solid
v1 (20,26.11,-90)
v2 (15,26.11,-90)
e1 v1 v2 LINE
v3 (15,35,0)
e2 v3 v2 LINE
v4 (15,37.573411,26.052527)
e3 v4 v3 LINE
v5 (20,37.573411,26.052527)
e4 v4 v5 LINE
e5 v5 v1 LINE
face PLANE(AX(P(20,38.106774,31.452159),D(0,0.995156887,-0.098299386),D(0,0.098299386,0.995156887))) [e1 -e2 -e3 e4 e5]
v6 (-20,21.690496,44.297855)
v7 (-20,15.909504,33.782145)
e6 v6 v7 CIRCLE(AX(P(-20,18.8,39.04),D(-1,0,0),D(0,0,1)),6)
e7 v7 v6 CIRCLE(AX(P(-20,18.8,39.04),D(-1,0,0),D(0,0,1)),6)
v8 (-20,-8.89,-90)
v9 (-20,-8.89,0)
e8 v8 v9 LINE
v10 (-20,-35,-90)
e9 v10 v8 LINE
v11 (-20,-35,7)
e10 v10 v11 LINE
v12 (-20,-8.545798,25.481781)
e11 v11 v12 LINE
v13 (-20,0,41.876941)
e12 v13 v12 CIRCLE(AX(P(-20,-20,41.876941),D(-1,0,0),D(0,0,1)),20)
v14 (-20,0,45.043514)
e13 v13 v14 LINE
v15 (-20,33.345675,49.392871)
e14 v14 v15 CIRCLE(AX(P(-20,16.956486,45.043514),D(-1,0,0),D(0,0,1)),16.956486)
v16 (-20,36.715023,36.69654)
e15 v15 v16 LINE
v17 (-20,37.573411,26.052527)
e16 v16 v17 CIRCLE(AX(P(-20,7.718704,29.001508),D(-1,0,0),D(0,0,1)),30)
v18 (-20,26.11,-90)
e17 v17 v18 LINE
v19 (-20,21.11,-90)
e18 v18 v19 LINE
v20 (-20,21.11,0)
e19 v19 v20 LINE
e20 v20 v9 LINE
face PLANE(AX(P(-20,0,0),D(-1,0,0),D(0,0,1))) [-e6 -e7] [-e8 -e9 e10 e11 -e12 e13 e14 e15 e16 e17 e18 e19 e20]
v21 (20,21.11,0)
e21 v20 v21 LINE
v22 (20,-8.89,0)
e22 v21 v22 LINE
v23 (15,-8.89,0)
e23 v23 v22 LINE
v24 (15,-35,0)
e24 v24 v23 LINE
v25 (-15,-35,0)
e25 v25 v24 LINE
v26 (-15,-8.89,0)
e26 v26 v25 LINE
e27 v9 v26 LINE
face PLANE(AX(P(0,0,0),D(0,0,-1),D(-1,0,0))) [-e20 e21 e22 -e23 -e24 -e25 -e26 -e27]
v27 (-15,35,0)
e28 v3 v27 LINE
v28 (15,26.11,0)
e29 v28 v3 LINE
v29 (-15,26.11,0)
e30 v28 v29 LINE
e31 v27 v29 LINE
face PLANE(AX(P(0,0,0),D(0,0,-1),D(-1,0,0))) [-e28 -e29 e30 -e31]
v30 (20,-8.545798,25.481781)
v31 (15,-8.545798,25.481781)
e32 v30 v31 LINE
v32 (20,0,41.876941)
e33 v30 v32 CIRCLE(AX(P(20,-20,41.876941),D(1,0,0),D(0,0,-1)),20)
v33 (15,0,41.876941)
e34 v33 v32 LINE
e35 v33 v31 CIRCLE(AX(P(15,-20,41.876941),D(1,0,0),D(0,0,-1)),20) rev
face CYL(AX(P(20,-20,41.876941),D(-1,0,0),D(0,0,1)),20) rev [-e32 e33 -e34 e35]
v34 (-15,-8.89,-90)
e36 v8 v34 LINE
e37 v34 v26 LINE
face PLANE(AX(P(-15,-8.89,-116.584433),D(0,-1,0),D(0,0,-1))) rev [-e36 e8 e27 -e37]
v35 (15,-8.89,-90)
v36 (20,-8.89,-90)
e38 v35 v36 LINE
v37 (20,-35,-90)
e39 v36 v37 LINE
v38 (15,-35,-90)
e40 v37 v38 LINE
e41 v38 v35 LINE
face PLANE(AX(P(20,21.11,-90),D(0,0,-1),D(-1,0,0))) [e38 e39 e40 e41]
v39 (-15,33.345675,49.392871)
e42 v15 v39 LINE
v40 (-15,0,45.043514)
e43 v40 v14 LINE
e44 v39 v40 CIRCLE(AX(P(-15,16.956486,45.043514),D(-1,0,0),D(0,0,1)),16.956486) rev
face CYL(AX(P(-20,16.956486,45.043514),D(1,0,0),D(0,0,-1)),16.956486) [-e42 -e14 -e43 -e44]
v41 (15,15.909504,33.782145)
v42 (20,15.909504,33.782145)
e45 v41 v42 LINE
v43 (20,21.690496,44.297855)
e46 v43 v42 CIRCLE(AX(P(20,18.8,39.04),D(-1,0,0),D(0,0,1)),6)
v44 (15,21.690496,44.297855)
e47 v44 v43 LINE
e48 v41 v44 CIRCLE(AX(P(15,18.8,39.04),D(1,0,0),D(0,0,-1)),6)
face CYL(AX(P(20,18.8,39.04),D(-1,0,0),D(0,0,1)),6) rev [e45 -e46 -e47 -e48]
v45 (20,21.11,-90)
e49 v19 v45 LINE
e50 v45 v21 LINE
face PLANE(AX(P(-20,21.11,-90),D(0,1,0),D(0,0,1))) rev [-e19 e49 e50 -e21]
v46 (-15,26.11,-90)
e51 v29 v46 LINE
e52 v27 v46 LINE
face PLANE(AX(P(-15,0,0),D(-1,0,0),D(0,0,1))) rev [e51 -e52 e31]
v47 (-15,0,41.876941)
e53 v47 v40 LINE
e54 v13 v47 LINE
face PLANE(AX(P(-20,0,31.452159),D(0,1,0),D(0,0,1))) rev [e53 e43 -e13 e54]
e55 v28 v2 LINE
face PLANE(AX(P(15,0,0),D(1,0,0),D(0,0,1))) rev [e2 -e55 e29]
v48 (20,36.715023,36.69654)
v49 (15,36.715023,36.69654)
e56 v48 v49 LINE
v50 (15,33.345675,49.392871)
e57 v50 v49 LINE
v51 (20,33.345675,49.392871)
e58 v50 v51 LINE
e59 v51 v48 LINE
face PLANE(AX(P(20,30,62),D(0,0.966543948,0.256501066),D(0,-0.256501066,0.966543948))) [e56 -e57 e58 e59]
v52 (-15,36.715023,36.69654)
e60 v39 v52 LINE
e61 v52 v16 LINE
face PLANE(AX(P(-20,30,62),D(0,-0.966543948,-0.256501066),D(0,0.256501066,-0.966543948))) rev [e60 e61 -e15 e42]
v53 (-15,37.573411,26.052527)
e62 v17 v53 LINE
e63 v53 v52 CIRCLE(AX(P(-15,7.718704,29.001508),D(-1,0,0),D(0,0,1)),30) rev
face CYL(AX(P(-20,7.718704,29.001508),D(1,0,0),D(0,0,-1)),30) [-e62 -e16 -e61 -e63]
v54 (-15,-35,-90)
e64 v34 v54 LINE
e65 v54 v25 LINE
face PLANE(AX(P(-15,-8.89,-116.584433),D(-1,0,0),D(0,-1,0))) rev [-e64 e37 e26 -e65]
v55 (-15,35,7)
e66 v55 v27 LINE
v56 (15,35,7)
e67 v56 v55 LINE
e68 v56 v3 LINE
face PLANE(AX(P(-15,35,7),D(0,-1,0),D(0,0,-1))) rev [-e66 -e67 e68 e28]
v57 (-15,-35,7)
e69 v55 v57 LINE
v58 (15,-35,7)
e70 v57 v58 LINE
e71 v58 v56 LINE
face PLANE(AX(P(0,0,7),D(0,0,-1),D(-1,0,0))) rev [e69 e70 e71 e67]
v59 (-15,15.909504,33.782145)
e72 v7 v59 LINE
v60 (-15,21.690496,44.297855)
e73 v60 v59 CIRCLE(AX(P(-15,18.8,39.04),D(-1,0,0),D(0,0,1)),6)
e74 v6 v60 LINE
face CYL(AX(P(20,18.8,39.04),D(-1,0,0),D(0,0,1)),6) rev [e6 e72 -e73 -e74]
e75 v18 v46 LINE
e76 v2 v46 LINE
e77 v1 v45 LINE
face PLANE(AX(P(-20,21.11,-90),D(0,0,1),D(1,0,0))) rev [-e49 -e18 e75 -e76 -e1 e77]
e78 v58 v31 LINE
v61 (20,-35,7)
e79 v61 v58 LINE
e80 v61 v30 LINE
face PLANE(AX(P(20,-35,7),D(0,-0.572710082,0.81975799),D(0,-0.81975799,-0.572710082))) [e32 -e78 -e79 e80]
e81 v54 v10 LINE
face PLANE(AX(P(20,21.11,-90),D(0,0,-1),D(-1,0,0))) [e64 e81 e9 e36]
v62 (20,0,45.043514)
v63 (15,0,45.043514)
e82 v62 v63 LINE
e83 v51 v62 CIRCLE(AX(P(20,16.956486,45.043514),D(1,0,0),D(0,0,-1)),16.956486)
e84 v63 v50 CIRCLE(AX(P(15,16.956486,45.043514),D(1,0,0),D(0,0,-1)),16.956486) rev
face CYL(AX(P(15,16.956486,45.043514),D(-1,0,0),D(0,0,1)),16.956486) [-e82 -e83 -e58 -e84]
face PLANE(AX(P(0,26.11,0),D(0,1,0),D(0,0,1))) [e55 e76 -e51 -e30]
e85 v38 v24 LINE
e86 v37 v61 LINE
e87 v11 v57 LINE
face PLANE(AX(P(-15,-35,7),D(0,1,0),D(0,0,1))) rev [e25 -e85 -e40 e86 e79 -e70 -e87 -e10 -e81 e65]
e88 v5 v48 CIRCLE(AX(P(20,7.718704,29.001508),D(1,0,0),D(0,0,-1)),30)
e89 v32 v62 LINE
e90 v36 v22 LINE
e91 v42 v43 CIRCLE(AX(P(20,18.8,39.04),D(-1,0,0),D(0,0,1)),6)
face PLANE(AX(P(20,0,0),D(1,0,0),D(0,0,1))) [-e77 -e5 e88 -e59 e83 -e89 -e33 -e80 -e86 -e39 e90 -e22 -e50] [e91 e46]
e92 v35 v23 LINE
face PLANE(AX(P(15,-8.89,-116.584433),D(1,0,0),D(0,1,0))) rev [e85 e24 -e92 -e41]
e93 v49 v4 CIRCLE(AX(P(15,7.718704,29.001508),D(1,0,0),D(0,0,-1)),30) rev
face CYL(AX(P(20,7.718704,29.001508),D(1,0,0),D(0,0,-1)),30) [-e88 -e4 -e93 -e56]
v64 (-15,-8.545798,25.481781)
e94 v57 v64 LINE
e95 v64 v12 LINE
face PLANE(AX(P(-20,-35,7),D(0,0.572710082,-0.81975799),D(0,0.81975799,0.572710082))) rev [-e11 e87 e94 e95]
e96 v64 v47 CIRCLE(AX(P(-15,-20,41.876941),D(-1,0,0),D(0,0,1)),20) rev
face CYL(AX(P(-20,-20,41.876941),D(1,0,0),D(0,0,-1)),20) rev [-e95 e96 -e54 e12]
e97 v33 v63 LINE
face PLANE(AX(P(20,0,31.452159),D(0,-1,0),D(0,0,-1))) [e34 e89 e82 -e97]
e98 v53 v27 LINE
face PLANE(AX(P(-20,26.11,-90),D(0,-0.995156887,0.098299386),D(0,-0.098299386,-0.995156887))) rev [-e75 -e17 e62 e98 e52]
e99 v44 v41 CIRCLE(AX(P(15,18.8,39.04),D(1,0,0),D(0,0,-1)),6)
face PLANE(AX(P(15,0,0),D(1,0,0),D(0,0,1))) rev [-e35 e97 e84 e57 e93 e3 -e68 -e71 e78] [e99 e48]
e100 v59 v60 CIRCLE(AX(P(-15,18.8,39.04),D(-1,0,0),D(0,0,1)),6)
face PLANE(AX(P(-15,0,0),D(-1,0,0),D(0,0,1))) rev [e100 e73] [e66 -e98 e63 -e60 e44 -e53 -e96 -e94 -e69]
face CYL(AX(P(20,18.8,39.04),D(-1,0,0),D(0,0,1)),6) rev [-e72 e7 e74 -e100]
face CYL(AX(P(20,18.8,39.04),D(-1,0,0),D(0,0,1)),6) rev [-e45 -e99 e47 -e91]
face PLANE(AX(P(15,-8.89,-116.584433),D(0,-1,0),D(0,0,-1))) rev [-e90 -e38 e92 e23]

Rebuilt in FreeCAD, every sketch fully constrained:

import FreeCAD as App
import Part
import Sketcher

V = App.Vector


def edges_at(feature, points):
    """Names of the edges that pass closest to the given points."""
    edges = feature.Shape.Edges
    near = lambda p: min(range(len(edges)), key=lambda i: edges[i].distToShape(Part.Vertex(*p))[0])
    return sorted({f"Edge{near(p) + 1}" for p in points})

doc = App.newDocument("Part")
body = doc.addObject("PartDesign::Body", "Body")

sketch1 = body.newObject("Sketcher::SketchObject", "Sketch")
sketch1.AttachmentSupport = (doc.getObject("XY_Plane"), [""])
sketch1.MapMode = "FlatFace"
sketch1.addGeometry([
    Part.LineSegment(V(-15, 35, 0), V(-15, -35, 0)),
    Part.LineSegment(V(-15, -35, 0), V(15, -35, 0)),
    Part.LineSegment(V(15, -35, 0), V(15, 35, 0)),
    Part.LineSegment(V(15, 35, 0), V(-15, 35, 0)),
], False)
sketch1.addConstraint([
    Sketcher.Constraint("Coincident", 0, 2, 1, 1),
    Sketcher.Constraint("Coincident", 1, 2, 2, 1),
    Sketcher.Constraint("Coincident", 2, 2, 3, 1),
    Sketcher.Constraint("Coincident", 3, 2, 0, 1),
    Sketcher.Constraint("Vertical", 0),
    Sketcher.Constraint("Horizontal", 1),
    Sketcher.Constraint("Vertical", 2),
    Sketcher.Constraint("Horizontal", 3),
    Sketcher.Constraint("Symmetric", 0, 2, 2, 2, -1, 1),
    Sketcher.Constraint("DistanceX", 1, 1, 1, 2, 30.0),
    Sketcher.Constraint("DistanceY", 0, 2, 0, 1, 70.0),
])
pad1 = body.newObject("PartDesign::Pad", "Pad")
pad1.Profile = sketch1
pad1.Length = 7

sketch2 = body.newObject("Sketcher::SketchObject", "Sketch001")
sketch2.AttachmentSupport = (doc.getObject("YZ_Plane"), [""])
sketch2.MapMode = "FlatFace"
sketch2.AttachmentOffset = App.Placement(V(0, 0, -15), App.Rotation())
sketch2.addGeometry([
    Part.LineSegment(V(-35, 7, 0), V(0, 31, 0)),
    Part.LineSegment(V(0, 31, 0), V(0, 62, 0)),
    Part.LineSegment(V(0, 62, 0), V(30, 62, 0)),
    Part.LineSegment(V(30, 62, 0), V(38, 31, 0)),
    Part.LineSegment(V(38, 31, 0), V(35, 0, 0)),
    Part.LineSegment(V(35, 0, 0), V(26, -90, 0)),
    Part.LineSegment(V(26, -90, 0), V(21, -90, 0)),
    Part.LineSegment(V(21, -90, 0), V(21, 0, 0)),
    Part.LineSegment(V(21, 0, 0), V(-35, 0, 0)),
    Part.LineSegment(V(-35, 0, 0), V(-35, 7, 0)),
], False)
sketch2.addConstraint([
    Sketcher.Constraint("Coincident", 0, 2, 1, 1),
    Sketcher.Constraint("Coincident", 1, 2, 2, 1),
    Sketcher.Constraint("Coincident", 2, 2, 3, 1),
    Sketcher.Constraint("Coincident", 3, 2, 4, 1),
    Sketcher.Constraint("Coincident", 4, 2, 5, 1),
    Sketcher.Constraint("Coincident", 5, 2, 6, 1),
    Sketcher.Constraint("Coincident", 6, 2, 7, 1),
    Sketcher.Constraint("Coincident", 7, 2, 8, 1),
    Sketcher.Constraint("Coincident", 8, 2, 9, 1),
    Sketcher.Constraint("Coincident", 9, 2, 0, 1),
    Sketcher.Constraint("Vertical", 1),
    Sketcher.Constraint("Horizontal", 2),
    Sketcher.Constraint("Horizontal", 6),
    Sketcher.Constraint("Vertical", 7),
    Sketcher.Constraint("Horizontal", 8),
    Sketcher.Constraint("Vertical", 9),
    Sketcher.Constraint("Symmetric", 4, 2, 8, 2, -1, 1),
    Sketcher.Constraint("PointOnObject", 0, 2, -2),
    Sketcher.Constraint("PointOnObject", 4, 2, -1),
    Sketcher.Constraint("Parallel", 4, 5),
    Sketcher.Constraint("Horizontal", 0, 2, 3, 2),
    Sketcher.Constraint("Equal", 3, 4),
    Sketcher.Constraint("DistanceX", 2, 1, 2, 2, 30.0),
    Sketcher.Constraint("DistanceX", 6, 2, 6, 1, 5.0),
    Sketcher.Constraint("DistanceY", 7, 1, 7, 2, 90.0),
    Sketcher.Constraint("DistanceY", 9, 1, 9, 2, 7.0),
    Sketcher.Constraint("DistanceY", -1, 1, 1, 2, 62.0),
    Sketcher.Constraint("DistanceX", -1, 1, 4, 2, 35.0),
    Sketcher.Constraint("DistanceX", 8, 2, 8, 1, 56.11),
])
pad2 = body.newObject("PartDesign::Pad", "Pad001")
pad2.Profile = sketch2
pad2.Length = 5
pad2.Reversed = True
doc.recompute()

mirrored = body.newObject("PartDesign::Mirrored", "Mirrored")
mirrored.Originals = [pad2]
mirrored.MirrorPlane = (doc.getObject("YZ_Plane"), [""])
body.Tip = mirrored
doc.recompute()

fillet = body.newObject("PartDesign::Fillet", "Fillet")
fillet.Base = (mirrored, edges_at(mirrored, [(-17.5, 0, 62), (-17.5, 30, 62)]))
fillet.Radius = 16.956486
doc.recompute()

fillet2 = body.newObject("PartDesign::Fillet", "Fillet001")
fillet2.Base = (fillet, edges_at(fillet, [(17.5, 30, 62), (17.5, 0, 62)]))
fillet2.Radius = 16.956486
doc.recompute()

fillet3 = body.newObject("PartDesign::Fillet", "Fillet002")
fillet3.Base = (fillet2, edges_at(fillet2, [(-17.5, 38.107, 31.452)]))
fillet3.Radius = 30
doc.recompute()

fillet4 = body.newObject("PartDesign::Fillet", "Fillet003")
fillet4.Base = (fillet3, edges_at(fillet3, [(17.5, 38.107, 31.452)]))
fillet4.Radius = 30
doc.recompute()

fillet5 = body.newObject("PartDesign::Fillet", "Fillet004")
fillet5.Base = (fillet4, edges_at(fillet4, [(-17.5, 0, 31.452)]))
fillet5.Radius = 20
doc.recompute()

fillet6 = body.newObject("PartDesign::Fillet", "Fillet005")
fillet6.Base = (fillet5, edges_at(fillet5, [(17.5, 0, 31.452)]))
fillet6.Radius = 20

sketch3 = body.newObject("Sketcher::SketchObject", "Sketch002")
sketch3.AttachmentSupport = (doc.getObject("YZ_Plane"), [""])
sketch3.MapMode = "FlatFace"
sketch3.AttachmentOffset = App.Placement(V(0, 0, -20), App.Rotation())
sketch3.addGeometry(Part.Circle(V(19, 39, 0), V(0, 0, 1), 6), False)
sketch3.addConstraint([
    Sketcher.Constraint("Diameter", 0, 12.0),
    Sketcher.Constraint("DistanceX", -1, 1, 0, 3, 18.8),
    Sketcher.Constraint("DistanceY", -1, 1, 0, 3, 39.04),
])
pocket1 = body.newObject("PartDesign::Pocket", "Pocket")
pocket1.Profile = sketch3
pocket1.Type = "ThroughAll"
pocket1.Reversed = True

sketch4 = body.newObject("Sketcher::SketchObject", "Sketch003")
sketch4.AttachmentSupport = (doc.getObject("XY_Plane"), [""])
sketch4.MapMode = "FlatFace"
sketch4.addGeometry([
    Part.LineSegment(V(20, -9, 0), V(20, -35, 0)),
    Part.LineSegment(V(20, -35, 0), V(15, -35, 0)),
    Part.LineSegment(V(15, -35, 0), V(15, -9, 0)),
    Part.LineSegment(V(15, -9, 0), V(20, -9, 0)),
    Part.LineSegment(V(-15, -9, 0), V(-15, -35, 0)),
    Part.LineSegment(V(-15, -35, 0), V(-20, -35, 0)),
    Part.LineSegment(V(-20, -35, 0), V(-20, -9, 0)),
    Part.LineSegment(V(-20, -9, 0), V(-15, -9, 0)),
], False)
sketch4.addConstraint([
    Sketcher.Constraint("Coincident", 0, 2, 1, 1),
    Sketcher.Constraint("Coincident", 1, 2, 2, 1),
    Sketcher.Constraint("Coincident", 2, 2, 3, 1),
    Sketcher.Constraint("Coincident", 3, 2, 0, 1),
    Sketcher.Constraint("Coincident", 4, 2, 5, 1),
    Sketcher.Constraint("Coincident", 5, 2, 6, 1),
    Sketcher.Constraint("Coincident", 6, 2, 7, 1),
    Sketcher.Constraint("Coincident", 7, 2, 4, 1),
    Sketcher.Constraint("Vertical", 0),
    Sketcher.Constraint("Horizontal", 1),
    Sketcher.Constraint("Vertical", 2),
    Sketcher.Constraint("Horizontal", 3),
    Sketcher.Constraint("Vertical", 4),
    Sketcher.Constraint("Horizontal", 5),
    Sketcher.Constraint("Vertical", 6),
    Sketcher.Constraint("Horizontal", 7),
    Sketcher.Constraint("Symmetric", 1, 2, 4, 2, -2),
    Sketcher.Constraint("Symmetric", 3, 2, 6, 2, -2),
    Sketcher.Constraint("DistanceX", 1, 2, 1, 1, 5.0),
    Sketcher.Constraint("DistanceX", -1, 1, 0, 2, 20.0),
    Sketcher.Constraint("DistanceY", 0, 2, -1, 1, 35.0),
    Sketcher.Constraint("DistanceY", 0, 2, 0, 1, 26.11),
])
pad3 = body.newObject("PartDesign::Pad", "Pad002")
pad3.Profile = sketch4
pad3.Length = 90
pad3.Reversed = True

sketch5 = body.newObject("Sketcher::SketchObject", "Sketch004")
sketch5.AttachmentSupport = (doc.getObject("XZ_Plane"), [""])
sketch5.MapMode = "FlatFace"
sketch5.AttachmentOffset = App.Placement(V(0, 0, -21.11), App.Rotation())
sketch5.addGeometry([
    Part.LineSegment(V(-15, 0, 0), V(-15, -90, 0)),
    Part.LineSegment(V(-15, -90, 0), V(15, -90, 0)),
    Part.LineSegment(V(15, -90, 0), V(15, 0, 0)),
    Part.LineSegment(V(15, 0, 0), V(-15, 0, 0)),
], False)
sketch5.addConstraint([
    Sketcher.Constraint("Coincident", 0, 2, 1, 1),
    Sketcher.Constraint("Coincident", 1, 2, 2, 1),
    Sketcher.Constraint("Coincident", 2, 2, 3, 1),
    Sketcher.Constraint("Coincident", 3, 2, 0, 1),
    Sketcher.Constraint("Vertical", 0),
    Sketcher.Constraint("Horizontal", 1),
    Sketcher.Constraint("Vertical", 2),
    Sketcher.Constraint("Horizontal", 3),
    Sketcher.Constraint("Symmetric", 2, 2, 3, 2, -1, 1),
    Sketcher.Constraint("DistanceX", 1, 1, 1, 2, 30.0),
    Sketcher.Constraint("DistanceY", 0, 2, 0, 1, 90.0),
])
pad4 = body.newObject("PartDesign::Pad", "Pad003")
pad4.Profile = sketch5
pad4.Length = 5
pad4.Reversed = True

doc.recompute()
